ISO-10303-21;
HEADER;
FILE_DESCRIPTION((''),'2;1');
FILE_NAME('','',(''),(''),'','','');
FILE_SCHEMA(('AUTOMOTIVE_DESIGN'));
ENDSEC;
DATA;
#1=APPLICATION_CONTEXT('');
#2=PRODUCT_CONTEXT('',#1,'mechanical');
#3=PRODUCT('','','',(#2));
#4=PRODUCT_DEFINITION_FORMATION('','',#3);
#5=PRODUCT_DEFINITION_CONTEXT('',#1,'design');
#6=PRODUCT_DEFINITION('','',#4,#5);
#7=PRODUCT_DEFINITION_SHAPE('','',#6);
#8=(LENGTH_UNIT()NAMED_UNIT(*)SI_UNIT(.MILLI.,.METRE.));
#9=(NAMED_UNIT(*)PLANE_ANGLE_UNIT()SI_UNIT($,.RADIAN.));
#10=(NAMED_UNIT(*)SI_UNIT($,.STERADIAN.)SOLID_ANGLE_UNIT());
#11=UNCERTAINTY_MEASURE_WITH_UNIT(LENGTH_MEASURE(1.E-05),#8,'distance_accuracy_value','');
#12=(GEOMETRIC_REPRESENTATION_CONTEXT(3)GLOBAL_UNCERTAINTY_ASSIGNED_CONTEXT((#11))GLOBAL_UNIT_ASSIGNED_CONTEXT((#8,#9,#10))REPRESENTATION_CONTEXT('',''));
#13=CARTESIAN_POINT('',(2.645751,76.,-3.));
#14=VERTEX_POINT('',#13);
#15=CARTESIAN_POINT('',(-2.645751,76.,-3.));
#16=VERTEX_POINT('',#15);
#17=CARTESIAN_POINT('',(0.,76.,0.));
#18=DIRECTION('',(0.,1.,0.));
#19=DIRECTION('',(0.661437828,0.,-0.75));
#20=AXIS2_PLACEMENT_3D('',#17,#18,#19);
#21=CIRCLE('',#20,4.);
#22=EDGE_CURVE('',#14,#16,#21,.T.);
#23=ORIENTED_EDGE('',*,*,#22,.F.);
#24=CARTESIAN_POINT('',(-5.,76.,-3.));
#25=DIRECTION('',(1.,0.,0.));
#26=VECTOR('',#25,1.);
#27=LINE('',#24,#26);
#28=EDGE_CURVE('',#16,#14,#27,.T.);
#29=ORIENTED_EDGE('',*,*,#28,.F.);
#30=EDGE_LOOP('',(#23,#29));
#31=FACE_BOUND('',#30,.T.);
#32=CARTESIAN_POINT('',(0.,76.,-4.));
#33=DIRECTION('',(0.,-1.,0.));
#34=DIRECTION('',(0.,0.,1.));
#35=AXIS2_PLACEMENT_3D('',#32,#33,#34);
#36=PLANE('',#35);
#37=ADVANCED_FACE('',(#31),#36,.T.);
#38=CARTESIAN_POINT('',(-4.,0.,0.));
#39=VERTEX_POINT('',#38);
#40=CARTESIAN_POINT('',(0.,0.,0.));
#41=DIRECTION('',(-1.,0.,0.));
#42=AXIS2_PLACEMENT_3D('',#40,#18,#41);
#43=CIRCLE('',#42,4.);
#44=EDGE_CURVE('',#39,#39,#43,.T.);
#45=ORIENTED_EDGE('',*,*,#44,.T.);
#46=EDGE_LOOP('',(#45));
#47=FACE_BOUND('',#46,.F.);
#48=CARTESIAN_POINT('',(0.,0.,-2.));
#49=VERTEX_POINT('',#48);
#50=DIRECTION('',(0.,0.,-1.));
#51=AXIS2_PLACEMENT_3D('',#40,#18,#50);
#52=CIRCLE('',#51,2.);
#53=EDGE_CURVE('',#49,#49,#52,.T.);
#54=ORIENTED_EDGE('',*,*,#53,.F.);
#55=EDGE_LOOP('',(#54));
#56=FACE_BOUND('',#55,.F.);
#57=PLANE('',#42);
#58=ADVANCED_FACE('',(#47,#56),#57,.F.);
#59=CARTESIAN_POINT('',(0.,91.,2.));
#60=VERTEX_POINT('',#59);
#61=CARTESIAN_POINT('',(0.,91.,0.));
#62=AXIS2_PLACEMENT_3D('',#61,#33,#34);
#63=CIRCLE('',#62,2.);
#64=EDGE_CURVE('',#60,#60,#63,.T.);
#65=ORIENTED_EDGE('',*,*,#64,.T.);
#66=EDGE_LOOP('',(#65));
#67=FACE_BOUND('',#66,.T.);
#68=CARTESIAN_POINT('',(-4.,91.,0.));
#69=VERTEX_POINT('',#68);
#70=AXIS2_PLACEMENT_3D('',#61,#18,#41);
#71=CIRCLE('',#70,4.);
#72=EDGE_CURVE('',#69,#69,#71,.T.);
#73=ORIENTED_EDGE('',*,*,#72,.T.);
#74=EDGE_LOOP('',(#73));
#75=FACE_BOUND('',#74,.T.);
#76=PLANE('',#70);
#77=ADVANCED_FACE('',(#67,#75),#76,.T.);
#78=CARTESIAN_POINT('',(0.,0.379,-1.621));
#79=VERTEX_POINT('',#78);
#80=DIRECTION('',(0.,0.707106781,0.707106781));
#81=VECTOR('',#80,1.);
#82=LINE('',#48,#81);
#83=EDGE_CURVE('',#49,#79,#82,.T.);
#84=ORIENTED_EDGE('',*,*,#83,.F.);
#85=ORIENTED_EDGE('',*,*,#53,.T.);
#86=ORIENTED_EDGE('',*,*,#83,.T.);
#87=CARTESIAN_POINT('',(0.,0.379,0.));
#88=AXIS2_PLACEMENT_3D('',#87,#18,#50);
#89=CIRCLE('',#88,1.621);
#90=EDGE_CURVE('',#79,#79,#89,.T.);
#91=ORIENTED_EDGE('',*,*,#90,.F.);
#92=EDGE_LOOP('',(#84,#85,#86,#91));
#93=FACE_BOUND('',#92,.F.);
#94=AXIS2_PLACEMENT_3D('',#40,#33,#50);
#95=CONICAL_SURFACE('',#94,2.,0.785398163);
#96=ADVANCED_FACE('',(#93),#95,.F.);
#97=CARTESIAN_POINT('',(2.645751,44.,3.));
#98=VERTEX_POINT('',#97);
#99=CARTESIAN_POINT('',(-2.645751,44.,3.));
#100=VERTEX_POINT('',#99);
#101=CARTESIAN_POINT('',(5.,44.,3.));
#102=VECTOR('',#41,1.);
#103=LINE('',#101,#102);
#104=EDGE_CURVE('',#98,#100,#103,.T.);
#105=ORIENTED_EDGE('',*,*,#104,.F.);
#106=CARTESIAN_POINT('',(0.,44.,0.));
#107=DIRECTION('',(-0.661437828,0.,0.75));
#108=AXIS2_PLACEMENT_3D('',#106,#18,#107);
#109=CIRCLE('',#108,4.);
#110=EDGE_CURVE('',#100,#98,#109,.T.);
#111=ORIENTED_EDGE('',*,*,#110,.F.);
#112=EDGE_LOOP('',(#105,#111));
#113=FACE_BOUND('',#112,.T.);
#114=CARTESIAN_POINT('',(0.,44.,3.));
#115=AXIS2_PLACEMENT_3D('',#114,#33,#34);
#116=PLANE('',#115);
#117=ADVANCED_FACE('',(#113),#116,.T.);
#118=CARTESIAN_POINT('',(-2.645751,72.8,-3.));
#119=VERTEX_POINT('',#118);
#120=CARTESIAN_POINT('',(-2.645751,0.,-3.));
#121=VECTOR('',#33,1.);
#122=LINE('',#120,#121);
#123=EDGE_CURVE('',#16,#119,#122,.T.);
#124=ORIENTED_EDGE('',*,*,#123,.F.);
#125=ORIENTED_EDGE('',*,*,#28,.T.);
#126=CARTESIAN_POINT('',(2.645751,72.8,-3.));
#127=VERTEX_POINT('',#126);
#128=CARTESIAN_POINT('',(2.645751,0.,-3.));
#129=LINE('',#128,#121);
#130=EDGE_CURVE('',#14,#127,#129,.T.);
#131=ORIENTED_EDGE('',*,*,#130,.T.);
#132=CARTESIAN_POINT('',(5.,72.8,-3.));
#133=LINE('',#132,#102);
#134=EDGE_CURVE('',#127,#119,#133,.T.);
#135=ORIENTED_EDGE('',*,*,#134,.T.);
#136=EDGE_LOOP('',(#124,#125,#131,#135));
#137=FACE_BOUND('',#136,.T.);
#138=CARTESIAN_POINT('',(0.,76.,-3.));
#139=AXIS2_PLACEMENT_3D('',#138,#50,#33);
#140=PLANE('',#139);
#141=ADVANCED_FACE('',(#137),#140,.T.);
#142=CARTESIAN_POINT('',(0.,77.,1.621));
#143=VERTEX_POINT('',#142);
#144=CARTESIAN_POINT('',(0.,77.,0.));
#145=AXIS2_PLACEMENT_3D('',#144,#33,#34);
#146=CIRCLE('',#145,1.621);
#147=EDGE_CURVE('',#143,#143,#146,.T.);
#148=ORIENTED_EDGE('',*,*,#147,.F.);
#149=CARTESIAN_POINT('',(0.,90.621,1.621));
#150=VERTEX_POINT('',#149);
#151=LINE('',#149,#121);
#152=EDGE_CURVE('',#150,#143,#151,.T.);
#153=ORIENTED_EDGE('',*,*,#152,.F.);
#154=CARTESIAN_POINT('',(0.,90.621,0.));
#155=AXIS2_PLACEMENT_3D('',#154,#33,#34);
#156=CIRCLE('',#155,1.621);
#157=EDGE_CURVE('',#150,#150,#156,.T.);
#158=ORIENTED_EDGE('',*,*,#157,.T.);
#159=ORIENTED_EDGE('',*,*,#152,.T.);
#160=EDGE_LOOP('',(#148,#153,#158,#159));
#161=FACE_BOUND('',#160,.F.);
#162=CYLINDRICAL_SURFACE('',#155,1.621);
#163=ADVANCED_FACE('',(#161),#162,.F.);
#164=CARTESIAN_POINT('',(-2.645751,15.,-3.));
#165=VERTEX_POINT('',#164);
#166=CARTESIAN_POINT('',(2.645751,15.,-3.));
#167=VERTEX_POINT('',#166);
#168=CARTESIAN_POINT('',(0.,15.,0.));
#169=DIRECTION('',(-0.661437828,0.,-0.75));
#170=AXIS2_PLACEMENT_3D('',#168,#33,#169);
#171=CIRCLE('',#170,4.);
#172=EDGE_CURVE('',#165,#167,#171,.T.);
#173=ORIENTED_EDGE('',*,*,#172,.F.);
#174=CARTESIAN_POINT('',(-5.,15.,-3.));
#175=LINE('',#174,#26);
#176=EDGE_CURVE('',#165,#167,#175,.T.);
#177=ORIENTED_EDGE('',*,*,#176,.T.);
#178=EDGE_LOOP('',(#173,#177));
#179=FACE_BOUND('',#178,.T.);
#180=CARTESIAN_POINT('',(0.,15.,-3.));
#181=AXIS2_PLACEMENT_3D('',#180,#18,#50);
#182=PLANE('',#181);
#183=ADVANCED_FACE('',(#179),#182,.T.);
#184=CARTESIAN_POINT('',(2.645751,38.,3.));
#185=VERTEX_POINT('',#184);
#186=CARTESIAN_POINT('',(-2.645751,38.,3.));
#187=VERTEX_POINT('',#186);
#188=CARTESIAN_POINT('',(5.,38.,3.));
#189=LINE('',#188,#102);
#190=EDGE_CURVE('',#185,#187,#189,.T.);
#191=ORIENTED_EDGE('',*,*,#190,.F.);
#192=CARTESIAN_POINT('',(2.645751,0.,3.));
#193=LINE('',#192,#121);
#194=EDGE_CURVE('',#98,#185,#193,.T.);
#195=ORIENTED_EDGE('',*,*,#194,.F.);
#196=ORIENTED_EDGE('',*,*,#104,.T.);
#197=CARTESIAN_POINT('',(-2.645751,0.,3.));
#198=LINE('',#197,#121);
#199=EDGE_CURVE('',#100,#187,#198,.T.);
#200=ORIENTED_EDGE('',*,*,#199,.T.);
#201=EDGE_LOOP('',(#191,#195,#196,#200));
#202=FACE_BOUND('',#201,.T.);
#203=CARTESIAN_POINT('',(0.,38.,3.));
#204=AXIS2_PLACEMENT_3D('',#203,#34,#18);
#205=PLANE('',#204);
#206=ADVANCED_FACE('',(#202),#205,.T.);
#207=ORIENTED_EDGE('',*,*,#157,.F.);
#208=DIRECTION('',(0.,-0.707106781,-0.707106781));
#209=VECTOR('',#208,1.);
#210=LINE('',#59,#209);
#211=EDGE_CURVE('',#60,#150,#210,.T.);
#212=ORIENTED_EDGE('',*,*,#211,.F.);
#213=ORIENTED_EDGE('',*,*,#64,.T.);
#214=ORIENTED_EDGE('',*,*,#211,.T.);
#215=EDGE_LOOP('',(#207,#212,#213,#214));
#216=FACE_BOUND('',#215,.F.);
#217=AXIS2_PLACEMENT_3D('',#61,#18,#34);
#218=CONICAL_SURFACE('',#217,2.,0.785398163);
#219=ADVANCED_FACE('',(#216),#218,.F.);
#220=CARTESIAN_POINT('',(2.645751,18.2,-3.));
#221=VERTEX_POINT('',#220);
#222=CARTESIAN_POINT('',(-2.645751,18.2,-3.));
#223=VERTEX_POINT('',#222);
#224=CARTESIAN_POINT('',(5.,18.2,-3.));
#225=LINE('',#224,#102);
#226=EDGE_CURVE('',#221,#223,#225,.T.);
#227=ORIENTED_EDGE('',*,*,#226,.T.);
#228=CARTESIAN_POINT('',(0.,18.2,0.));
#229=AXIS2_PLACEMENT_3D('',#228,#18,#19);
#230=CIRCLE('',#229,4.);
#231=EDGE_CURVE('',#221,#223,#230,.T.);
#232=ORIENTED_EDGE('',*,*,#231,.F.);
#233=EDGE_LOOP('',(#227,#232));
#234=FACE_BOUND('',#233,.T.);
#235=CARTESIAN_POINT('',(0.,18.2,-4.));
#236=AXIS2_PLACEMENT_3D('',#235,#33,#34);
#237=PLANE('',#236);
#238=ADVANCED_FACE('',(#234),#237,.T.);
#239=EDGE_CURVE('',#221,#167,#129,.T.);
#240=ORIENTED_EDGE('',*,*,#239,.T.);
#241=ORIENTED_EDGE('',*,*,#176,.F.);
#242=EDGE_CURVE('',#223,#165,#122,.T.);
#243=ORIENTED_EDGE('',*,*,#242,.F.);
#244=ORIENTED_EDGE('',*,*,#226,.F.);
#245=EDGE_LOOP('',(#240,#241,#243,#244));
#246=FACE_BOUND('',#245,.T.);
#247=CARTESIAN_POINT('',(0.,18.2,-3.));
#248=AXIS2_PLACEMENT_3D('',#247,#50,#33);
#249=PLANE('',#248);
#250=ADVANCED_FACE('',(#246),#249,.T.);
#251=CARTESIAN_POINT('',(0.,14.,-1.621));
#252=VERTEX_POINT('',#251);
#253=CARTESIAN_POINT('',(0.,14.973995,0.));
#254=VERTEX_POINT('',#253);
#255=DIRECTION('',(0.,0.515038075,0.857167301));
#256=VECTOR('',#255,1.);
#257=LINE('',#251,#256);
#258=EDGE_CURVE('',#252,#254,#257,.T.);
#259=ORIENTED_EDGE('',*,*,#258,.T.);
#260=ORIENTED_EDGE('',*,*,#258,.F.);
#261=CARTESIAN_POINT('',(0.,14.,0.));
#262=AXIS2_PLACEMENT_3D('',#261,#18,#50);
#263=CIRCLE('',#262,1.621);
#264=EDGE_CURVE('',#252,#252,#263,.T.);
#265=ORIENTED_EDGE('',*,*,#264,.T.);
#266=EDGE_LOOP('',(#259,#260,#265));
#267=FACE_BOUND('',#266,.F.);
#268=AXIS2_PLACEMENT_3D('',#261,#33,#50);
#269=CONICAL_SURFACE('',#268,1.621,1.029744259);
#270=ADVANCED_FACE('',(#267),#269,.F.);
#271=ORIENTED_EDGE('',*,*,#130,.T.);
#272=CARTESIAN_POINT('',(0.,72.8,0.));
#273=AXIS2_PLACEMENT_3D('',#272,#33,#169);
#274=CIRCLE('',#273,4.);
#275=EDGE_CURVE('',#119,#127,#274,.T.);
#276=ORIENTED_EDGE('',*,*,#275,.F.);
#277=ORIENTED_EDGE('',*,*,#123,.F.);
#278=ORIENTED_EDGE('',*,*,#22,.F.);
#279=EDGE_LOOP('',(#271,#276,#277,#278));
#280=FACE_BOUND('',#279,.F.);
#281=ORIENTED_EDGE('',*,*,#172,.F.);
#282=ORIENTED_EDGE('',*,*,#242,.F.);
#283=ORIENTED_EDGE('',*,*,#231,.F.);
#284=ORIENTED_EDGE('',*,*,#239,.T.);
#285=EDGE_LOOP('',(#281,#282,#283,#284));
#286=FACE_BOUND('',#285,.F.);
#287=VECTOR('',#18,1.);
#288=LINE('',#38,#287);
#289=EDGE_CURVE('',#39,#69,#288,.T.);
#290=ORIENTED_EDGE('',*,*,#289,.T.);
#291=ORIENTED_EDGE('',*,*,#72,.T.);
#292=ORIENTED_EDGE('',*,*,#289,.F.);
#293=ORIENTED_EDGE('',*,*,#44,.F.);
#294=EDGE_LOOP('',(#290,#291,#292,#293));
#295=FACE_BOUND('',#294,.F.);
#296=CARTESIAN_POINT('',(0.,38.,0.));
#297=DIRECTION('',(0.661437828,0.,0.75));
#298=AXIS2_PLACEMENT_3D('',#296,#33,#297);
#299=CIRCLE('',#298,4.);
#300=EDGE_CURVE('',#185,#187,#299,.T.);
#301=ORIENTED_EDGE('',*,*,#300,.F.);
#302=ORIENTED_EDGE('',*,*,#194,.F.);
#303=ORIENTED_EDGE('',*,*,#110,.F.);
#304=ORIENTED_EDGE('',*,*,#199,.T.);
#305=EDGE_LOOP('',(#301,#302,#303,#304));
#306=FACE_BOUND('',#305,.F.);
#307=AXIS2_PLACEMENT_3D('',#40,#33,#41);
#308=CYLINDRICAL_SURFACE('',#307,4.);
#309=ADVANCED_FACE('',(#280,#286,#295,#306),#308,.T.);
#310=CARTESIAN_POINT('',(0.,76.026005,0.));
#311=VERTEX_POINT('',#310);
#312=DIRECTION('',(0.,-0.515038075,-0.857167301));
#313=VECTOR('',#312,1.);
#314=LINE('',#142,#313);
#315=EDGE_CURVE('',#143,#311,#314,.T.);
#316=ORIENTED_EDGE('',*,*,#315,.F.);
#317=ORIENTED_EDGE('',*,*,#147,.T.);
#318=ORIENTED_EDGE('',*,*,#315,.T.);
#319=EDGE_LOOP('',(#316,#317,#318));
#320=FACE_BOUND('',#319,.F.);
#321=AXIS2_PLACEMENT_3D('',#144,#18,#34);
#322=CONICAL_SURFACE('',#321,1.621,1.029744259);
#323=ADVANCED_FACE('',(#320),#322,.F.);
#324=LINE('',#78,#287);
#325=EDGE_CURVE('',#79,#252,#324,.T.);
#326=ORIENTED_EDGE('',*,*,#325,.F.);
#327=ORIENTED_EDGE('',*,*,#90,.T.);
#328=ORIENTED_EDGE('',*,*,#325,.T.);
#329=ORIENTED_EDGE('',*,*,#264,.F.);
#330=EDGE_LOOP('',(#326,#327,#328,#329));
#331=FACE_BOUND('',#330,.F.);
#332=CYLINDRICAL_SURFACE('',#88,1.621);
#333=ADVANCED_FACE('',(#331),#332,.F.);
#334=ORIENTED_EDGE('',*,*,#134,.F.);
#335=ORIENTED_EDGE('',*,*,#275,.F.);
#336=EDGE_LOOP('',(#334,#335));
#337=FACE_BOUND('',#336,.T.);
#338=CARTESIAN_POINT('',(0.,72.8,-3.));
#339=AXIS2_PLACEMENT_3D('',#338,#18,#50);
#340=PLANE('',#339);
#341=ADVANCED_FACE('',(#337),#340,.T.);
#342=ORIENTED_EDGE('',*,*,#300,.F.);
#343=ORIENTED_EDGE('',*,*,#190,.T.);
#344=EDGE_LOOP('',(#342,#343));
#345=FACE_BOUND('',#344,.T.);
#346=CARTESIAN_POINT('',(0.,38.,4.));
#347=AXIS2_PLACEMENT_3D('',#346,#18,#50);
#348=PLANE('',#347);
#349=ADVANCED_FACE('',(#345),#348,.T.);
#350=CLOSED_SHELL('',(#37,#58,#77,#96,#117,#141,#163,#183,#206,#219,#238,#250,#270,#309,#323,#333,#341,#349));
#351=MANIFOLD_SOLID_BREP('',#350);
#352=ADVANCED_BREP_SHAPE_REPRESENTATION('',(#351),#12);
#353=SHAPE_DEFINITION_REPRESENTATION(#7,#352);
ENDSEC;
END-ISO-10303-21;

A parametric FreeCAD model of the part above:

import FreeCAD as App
import Part
import Sketcher


def add_polygon(sketch, points):
    """Adds a closed chain of lines whose ends are joined by coincident constraints."""
    first, n = sketch.GeometryCount, len(points)
    for a, b in zip(points, points[1:] + points[:1]):
        sketch.addGeometry(Part.LineSegment(App.Vector(*a, 0), App.Vector(*b, 0)), False)
    for i in range(n):
        sketch.addConstraint(Sketcher.Constraint("Coincident", first + i, 2, first + (i + 1) % n, 1))

doc = App.newDocument("Part")
body = doc.addObject("PartDesign::Body", "Body")

sketch1 = doc.addObject("Sketcher::SketchObject", "Sketch")
body.addObject(sketch1)
sketch1.AttachmentSupport = (doc.XZ_Plane, [""])
sketch1.MapMode = "FlatFace"
sketch1.addGeometry(Part.Circle(App.Vector(0, 0, 0), App.Vector(0, 0, 1), 4), False)
sketch1.addConstraint([
    Sketcher.Constraint("Coincident", 0, 3, -1, 1),
    Sketcher.Constraint("Diameter", 0, 8.0),
])
pad1 = doc.addObject("PartDesign::Pad", "Pad")
body.addObject(pad1)
pad1.Profile = sketch1
pad1.Length = 91
pad1.Reversed = True

sketch2 = doc.addObject("Sketcher::SketchObject", "Sketch001")
body.addObject(sketch2)
sketch2.AttachmentSupport = (doc.XZ_Plane, [""])
sketch2.MapMode = "FlatFace"
sketch2.AttachmentOffset = App.Placement(App.Vector(0, 0, -91), App.Rotation())
sketch2.addGeometry(Part.Circle(App.Vector(0, 0, 0), App.Vector(0, 0, 1), 1.6), False)
sketch2.addConstraint([
    Sketcher.Constraint("Coincident", 0, 3, -1, 1),
    Sketcher.Constraint("Diameter", 0, 3.242),
])
doc.recompute()
hole = doc.addObject("PartDesign::Hole", "Hole")
body.addObject(hole)
hole.Profile = sketch2
hole.ThreadType = "None"
hole.Diameter = 3.242
hole.DepthType = "Dimension"
hole.Depth = 14
hole.DrillPoint = "Angled"
hole.DrillPointAngle = 118
hole.HoleCutType = "Countersink"
hole.HoleCutDiameter = 4
hole.HoleCutCountersinkAngle = 90
hole.Reversed = True

sketch3 = doc.addObject("Sketcher::SketchObject", "Sketch002")
body.addObject(sketch3)
sketch3.AttachmentSupport = (doc.XZ_Plane, [""])
sketch3.MapMode = "FlatFace"
sketch3.addGeometry(Part.Circle(App.Vector(0, 0, 0), App.Vector(0, 0, 1), 1.6), False)
sketch3.addConstraint([
    Sketcher.Constraint("Coincident", 0, 3, -1, 1),
    Sketcher.Constraint("Diameter", 0, 3.242),
])
doc.recompute()
hole2 = doc.addObject("PartDesign::Hole", "Hole001")
body.addObject(hole2)
hole2.Profile = sketch3
hole2.ThreadType = "None"
hole2.Diameter = 3.242
hole2.DepthType = "Dimension"
hole2.Depth = 14
hole2.DrillPoint = "Angled"
hole2.DrillPointAngle = 118
hole2.HoleCutType = "Countersink"
hole2.HoleCutDiameter = 4
hole2.HoleCutCountersinkAngle = 90

sketch4 = doc.addObject("Sketcher::SketchObject", "Sketch003")
body.addObject(sketch4)
sketch4.AttachmentSupport = (doc.YZ_Plane, [""])
sketch4.MapMode = "FlatFace"
add_polygon(sketch4, [(72.8, -4), (76, -4), (76, -3), (72.8, -3)])
add_polygon(sketch4, [(18.2, -3), (15, -3), (15, -4), (18.2, -4)])
add_polygon(sketch4, [(44, 3), (44, 4), (38, 4), (38, 3)])
sketch4.addConstraint([
    Sketcher.Constraint("Horizontal", 0),
    Sketcher.Constraint("Vertical", 1),
    Sketcher.Constraint("Horizontal", 2),
    Sketcher.Constraint("Vertical", 3),
    Sketcher.Constraint("Horizontal", 4),
    Sketcher.Constraint("Vertical", 5),
    Sketcher.Constraint("Horizontal", 6),
    Sketcher.Constraint("Vertical", 7),
    Sketcher.Constraint("Vertical", 8),
    Sketcher.Constraint("Horizontal", 9),
    Sketcher.Constraint("Vertical", 10),
    Sketcher.Constraint("Horizontal", 11),
    Sketcher.Constraint("Horizontal", 2, 2, 4, 2),
    Sketcher.Constraint("Horizontal", 3, 2, 5, 2),
    Sketcher.Constraint("Equal", 2, 4),
    Sketcher.Constraint("Equal", 7, 8),
    Sketcher.Constraint("DistanceX", 9, 2, 9, 1, 6.0),
    Sketcher.Constraint("DistanceY", 1, 1, 1, 2, 1.0),
    Sketcher.Constraint("DistanceX", 0, 1, 0, 2, 3.2),
    Sketcher.Constraint("DistanceY", 7, 2, 10, 2, 6.0),
    Sketcher.Constraint("DistanceX", -1, 1, 0, 2, 76.0),
    Sketcher.Constraint("DistanceY", 0, 2, -1, 1, 4.0),
    Sketcher.Constraint("DistanceX", -1, 1, 4, 2, 15.0),
    Sketcher.Constraint("DistanceX", -1, 1, 8, 2, 44.0),
])
pocket1 = doc.addObject("PartDesign::Pocket", "Pocket")
body.addObject(pocket1)
pocket1.Profile = sketch4
pocket1.Type = "ThroughAll"
pocket1.Midplane = True

doc.recompute()
